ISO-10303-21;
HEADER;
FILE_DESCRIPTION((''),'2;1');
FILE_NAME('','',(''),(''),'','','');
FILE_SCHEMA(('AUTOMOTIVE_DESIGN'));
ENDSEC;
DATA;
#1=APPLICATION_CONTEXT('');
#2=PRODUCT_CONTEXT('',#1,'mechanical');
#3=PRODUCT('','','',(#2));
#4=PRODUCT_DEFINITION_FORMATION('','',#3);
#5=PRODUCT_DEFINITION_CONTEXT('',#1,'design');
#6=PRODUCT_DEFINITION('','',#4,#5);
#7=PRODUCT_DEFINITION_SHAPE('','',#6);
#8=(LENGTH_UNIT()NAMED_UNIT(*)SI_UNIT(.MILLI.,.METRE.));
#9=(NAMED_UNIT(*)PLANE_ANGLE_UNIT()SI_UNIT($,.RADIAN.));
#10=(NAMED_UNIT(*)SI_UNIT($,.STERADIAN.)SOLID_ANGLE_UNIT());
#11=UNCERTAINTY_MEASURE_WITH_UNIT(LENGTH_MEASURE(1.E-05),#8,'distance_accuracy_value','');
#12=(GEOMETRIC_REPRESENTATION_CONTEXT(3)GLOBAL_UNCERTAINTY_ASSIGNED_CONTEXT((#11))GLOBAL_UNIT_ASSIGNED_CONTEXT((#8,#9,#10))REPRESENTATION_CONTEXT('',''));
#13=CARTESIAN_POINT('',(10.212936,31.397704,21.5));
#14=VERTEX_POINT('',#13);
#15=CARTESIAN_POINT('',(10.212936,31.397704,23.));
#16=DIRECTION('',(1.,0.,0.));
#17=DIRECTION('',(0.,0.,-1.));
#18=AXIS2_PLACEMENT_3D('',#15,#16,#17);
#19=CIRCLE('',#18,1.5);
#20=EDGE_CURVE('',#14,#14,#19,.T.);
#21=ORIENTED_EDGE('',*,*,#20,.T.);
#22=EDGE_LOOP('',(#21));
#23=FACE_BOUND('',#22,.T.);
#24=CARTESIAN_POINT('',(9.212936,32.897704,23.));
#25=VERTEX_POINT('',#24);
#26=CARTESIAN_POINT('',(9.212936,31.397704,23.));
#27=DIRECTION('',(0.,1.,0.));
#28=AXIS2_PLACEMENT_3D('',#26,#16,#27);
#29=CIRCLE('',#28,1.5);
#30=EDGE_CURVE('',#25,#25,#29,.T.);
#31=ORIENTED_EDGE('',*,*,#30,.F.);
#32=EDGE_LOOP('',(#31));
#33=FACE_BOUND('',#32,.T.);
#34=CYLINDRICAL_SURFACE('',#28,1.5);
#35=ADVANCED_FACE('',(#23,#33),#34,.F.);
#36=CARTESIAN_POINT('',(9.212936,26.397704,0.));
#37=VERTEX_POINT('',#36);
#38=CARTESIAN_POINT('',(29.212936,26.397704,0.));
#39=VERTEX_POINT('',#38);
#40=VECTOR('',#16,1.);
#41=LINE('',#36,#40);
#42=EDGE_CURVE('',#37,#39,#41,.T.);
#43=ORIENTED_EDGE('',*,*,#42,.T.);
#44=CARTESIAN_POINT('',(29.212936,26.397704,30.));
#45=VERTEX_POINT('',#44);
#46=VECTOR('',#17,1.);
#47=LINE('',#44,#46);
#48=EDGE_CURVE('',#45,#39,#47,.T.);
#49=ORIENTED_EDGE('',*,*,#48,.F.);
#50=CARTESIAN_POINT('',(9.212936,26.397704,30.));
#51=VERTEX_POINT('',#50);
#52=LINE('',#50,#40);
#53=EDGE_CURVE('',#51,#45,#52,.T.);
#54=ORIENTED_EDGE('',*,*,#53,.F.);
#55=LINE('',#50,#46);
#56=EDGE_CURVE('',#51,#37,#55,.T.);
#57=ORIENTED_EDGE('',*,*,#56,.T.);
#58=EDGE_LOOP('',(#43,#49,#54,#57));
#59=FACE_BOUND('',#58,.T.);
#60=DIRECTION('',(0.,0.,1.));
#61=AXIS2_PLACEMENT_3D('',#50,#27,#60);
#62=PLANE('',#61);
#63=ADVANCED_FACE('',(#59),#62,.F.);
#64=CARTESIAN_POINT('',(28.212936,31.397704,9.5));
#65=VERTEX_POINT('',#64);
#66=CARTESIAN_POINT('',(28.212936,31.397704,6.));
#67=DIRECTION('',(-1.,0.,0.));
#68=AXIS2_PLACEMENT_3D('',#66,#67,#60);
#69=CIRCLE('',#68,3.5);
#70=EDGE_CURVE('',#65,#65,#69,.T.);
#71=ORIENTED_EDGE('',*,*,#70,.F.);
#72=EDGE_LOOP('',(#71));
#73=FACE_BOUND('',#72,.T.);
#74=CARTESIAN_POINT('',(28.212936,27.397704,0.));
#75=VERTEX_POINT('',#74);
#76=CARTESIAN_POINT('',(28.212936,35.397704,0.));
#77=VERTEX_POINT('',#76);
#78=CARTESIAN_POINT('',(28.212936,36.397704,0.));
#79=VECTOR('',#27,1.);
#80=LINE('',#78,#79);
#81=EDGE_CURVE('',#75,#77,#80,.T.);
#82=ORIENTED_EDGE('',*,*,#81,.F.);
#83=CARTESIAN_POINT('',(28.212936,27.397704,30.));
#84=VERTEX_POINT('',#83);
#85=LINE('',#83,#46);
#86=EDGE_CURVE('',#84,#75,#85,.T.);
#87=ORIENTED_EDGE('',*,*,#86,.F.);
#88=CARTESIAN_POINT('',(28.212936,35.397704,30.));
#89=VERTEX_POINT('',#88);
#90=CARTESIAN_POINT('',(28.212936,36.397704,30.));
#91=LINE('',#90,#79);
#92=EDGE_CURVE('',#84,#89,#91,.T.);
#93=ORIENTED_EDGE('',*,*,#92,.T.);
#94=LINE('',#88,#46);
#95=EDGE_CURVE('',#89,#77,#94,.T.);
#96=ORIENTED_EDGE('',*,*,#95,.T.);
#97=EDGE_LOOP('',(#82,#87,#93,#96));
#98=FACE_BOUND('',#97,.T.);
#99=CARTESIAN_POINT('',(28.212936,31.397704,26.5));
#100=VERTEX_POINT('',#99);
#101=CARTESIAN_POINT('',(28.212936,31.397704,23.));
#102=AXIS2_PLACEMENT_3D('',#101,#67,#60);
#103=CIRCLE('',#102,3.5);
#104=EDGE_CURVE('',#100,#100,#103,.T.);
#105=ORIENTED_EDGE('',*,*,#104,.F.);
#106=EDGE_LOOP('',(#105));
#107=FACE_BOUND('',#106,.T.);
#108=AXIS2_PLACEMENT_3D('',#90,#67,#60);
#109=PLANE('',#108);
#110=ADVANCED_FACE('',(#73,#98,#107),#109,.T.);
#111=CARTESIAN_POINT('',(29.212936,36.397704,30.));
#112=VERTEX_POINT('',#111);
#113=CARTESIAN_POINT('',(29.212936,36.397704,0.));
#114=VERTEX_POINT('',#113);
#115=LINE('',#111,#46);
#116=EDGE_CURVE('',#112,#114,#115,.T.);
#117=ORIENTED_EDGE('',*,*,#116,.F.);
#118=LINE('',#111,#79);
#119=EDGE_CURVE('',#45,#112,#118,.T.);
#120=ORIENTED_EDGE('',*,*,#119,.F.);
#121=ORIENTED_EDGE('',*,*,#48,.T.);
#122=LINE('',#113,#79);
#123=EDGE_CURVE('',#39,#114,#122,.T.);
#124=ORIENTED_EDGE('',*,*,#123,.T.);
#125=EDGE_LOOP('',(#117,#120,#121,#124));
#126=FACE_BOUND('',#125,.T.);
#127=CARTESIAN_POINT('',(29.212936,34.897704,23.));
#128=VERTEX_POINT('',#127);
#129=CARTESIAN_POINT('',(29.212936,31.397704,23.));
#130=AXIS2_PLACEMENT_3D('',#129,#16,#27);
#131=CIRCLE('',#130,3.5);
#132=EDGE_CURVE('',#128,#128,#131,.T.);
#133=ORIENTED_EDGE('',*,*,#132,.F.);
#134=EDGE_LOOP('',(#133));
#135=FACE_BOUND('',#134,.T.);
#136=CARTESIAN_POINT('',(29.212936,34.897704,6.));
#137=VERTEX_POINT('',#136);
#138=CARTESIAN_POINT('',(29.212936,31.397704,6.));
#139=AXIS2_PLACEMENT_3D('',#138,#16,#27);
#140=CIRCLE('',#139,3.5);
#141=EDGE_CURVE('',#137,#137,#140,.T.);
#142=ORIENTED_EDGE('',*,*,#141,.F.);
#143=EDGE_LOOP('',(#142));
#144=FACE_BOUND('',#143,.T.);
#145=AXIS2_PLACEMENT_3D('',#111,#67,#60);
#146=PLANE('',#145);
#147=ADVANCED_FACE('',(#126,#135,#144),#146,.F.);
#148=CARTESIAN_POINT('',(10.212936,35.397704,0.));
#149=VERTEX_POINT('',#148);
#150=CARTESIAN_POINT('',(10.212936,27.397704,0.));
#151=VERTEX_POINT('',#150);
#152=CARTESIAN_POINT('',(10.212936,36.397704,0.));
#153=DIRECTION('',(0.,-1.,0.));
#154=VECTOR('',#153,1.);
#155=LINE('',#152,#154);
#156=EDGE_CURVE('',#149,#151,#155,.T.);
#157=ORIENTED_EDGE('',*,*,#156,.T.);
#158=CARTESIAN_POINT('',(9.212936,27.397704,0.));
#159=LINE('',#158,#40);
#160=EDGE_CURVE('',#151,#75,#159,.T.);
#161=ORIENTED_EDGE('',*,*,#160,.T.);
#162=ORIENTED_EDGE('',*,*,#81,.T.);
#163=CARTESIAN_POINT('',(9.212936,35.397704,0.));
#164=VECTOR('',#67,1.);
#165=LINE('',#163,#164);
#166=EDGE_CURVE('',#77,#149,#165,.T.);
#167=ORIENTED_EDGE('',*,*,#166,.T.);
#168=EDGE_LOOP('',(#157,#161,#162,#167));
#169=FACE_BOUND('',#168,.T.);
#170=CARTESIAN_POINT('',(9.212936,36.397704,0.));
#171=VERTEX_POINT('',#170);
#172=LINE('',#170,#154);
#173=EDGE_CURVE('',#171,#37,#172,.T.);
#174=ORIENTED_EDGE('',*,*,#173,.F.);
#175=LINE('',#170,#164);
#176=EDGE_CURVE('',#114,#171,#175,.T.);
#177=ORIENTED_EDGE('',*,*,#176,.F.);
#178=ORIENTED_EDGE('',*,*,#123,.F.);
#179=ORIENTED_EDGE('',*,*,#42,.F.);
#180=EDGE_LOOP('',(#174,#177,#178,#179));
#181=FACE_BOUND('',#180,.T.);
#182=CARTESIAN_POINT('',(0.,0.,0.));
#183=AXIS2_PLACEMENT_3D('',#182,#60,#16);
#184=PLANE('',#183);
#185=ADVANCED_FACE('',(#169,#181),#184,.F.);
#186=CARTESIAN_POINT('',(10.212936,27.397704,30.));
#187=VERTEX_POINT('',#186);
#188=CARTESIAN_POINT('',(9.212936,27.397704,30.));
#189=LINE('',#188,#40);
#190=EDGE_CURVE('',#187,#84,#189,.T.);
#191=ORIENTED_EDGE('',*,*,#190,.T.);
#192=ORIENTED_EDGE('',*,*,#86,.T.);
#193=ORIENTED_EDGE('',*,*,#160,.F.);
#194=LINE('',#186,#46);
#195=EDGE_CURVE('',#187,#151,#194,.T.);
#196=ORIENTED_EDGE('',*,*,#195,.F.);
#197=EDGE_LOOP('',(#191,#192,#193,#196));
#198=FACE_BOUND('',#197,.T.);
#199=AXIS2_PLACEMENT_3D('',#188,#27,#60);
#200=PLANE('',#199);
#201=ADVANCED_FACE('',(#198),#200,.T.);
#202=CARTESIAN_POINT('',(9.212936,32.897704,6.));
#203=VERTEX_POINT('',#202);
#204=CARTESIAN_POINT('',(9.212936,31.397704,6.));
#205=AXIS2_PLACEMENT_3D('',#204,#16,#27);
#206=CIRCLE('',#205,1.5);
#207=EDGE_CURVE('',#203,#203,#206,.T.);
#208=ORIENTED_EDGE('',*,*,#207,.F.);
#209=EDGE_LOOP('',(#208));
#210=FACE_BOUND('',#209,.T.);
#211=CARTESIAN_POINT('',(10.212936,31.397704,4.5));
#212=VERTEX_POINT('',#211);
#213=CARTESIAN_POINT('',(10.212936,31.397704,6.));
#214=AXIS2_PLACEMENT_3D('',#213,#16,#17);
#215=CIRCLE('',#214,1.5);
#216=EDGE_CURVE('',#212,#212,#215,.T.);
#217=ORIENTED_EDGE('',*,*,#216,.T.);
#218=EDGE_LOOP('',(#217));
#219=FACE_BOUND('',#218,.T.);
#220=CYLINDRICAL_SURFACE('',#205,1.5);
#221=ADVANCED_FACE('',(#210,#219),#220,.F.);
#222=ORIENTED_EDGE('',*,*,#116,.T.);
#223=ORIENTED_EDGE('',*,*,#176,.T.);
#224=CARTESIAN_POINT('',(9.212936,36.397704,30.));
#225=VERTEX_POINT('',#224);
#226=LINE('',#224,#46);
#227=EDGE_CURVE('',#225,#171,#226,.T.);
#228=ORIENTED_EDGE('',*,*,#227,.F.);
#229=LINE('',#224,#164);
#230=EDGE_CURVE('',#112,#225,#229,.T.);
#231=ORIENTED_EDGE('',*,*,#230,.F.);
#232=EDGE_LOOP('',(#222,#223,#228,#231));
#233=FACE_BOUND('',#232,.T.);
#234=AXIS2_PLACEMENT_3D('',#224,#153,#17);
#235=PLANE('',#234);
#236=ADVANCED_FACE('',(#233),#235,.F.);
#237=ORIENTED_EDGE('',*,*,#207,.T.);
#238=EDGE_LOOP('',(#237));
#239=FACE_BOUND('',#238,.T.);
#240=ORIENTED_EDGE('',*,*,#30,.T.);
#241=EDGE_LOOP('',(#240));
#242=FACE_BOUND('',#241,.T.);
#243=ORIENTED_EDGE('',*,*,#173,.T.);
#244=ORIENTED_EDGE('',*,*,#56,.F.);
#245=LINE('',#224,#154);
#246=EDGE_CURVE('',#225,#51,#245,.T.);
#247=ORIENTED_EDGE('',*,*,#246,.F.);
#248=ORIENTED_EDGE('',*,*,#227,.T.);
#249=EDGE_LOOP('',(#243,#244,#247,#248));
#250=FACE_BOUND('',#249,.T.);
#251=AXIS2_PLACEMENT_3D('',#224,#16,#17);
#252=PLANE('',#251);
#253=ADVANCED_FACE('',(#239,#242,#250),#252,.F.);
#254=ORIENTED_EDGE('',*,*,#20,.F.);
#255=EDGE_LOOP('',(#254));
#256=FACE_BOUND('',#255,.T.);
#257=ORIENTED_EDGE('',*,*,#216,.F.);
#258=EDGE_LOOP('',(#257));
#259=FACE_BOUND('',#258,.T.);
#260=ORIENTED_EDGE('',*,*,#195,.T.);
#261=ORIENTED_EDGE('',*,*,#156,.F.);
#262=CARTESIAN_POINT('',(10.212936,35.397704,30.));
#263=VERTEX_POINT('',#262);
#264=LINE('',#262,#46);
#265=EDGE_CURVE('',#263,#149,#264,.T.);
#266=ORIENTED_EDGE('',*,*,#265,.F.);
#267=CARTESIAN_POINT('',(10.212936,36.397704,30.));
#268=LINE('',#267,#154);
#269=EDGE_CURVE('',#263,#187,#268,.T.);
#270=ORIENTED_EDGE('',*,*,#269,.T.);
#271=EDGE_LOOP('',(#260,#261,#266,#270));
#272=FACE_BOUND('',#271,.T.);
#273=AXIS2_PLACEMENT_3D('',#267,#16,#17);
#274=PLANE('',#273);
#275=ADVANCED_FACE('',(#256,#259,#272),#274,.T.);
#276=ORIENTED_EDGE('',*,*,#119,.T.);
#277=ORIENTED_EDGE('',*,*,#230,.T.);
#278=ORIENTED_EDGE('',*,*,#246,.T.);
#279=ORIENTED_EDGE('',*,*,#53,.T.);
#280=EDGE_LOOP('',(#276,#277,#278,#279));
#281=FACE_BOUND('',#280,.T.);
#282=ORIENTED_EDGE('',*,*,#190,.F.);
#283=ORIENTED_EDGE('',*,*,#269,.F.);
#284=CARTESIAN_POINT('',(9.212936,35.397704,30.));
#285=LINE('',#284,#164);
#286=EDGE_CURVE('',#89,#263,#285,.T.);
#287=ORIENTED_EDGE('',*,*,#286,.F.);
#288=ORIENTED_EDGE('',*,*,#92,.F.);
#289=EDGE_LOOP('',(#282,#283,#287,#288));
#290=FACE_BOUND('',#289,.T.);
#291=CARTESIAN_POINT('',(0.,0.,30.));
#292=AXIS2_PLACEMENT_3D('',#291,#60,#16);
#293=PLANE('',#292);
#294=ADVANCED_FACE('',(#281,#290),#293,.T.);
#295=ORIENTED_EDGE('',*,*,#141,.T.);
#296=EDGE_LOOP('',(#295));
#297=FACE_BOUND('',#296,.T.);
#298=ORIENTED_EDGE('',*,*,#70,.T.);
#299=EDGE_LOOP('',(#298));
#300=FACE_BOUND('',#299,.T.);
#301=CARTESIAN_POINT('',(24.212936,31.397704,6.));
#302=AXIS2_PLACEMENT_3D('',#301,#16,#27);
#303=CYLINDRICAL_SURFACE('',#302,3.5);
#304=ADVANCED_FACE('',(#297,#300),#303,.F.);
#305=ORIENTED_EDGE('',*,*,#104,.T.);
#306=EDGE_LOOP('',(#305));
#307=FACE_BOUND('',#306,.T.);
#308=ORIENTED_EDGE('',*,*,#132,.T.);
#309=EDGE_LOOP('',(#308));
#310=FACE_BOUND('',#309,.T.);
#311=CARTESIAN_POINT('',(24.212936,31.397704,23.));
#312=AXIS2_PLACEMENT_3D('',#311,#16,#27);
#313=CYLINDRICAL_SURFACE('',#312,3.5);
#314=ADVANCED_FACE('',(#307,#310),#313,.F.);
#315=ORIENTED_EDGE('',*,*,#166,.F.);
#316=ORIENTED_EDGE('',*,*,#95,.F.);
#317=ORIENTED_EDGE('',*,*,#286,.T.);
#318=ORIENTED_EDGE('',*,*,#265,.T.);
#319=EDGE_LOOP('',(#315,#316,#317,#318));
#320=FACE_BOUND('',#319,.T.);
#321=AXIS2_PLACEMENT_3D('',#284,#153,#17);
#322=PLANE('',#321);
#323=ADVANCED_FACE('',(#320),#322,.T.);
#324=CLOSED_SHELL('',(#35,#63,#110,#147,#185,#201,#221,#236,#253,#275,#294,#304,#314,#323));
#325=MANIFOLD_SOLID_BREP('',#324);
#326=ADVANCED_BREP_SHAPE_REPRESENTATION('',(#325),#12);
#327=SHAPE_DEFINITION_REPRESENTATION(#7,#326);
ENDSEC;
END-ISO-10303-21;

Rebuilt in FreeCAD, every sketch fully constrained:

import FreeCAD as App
import Part
import Sketcher

doc = App.newDocument("Part")
body = doc.addObject("PartDesign::Body", "Body")

# Sketch on XY plane
sketch1 = body.newObject("Sketcher::SketchObject", "Sketch")
sketch1.AttachmentSupport = (doc.getObject("XY_Plane"), [""])
sketch1.MapMode = "FlatFace"
sketch1.addGeometry(Part.LineSegment(App.Vector(9, 36, 0), App.Vector(9, 26, 0)), False)
sketch1.addGeometry(Part.LineSegment(App.Vector(9, 26, 0), App.Vector(29, 26, 0)), False)
sketch1.addGeometry(Part.LineSegment(App.Vector(29, 26, 0), App.Vector(29, 36, 0)), False)
sketch1.addGeometry(Part.LineSegment(App.Vector(29, 36, 0), App.Vector(9, 36, 0)), False)
sketch1.addGeometry(Part.LineSegment(App.Vector(28, 27, 0), App.Vector(10, 27, 0)), False)
sketch1.addGeometry(Part.LineSegment(App.Vector(10, 27, 0), App.Vector(10, 35, 0)), False)
sketch1.addGeometry(Part.LineSegment(App.Vector(10, 35, 0), App.Vector(28, 35, 0)), False)
sketch1.addGeometry(Part.LineSegment(App.Vector(28, 35, 0), App.Vector(28, 27, 0)), False)
sketch1.addConstraint(Sketcher.Constraint("Coincident", 0, 2, 1, 1))
sketch1.addConstraint(Sketcher.Constraint("Coincident", 1, 2, 2, 1))
sketch1.addConstraint(Sketcher.Constraint("Coincident", 2, 2, 3, 1))
sketch1.addConstraint(Sketcher.Constraint("Coincident", 3, 2, 0, 1))
sketch1.addConstraint(Sketcher.Constraint("Coincident", 4, 2, 5, 1))
sketch1.addConstraint(Sketcher.Constraint("Coincident", 5, 2, 6, 1))
sketch1.addConstraint(Sketcher.Constraint("Coincident", 6, 2, 7, 1))
sketch1.addConstraint(Sketcher.Constraint("Coincident", 7, 2, 4, 1))
sketch1.addConstraint(Sketcher.Constraint("Vertical", 0))
sketch1.addConstraint(Sketcher.Constraint("Horizontal", 1))
sketch1.addConstraint(Sketcher.Constraint("Vertical", 2))
sketch1.addConstraint(Sketcher.Constraint("Horizontal", 3))
sketch1.addConstraint(Sketcher.Constraint("Horizontal", 4))
sketch1.addConstraint(Sketcher.Constraint("Vertical", 5))
sketch1.addConstraint(Sketcher.Constraint("Horizontal", 6))
sketch1.addConstraint(Sketcher.Constraint("Vertical", 7))
sketch1.addConstraint(Sketcher.Constraint("DistanceX", 1, 1, 1, 2, 20.0))
sketch1.addConstraint(Sketcher.Constraint("DistanceX", 4, 2, 4, 1, 18.0))
sketch1.addConstraint(Sketcher.Constraint("DistanceY", 0, 2, 0, 1, 10.0))
sketch1.addConstraint(Sketcher.Constraint("DistanceY", 5, 1, 5, 2, 8.0))
sketch1.addConstraint(Sketcher.Constraint("DistanceX", 0, 2, 4, 2, 1.0))
sketch1.addConstraint(Sketcher.Constraint("DistanceY", 0, 2, 4, 2, 1.0))
sketch1.addConstraint(Sketcher.Constraint("DistanceX", -1, 1, 0, 2, 9.212936))
sketch1.addConstraint(Sketcher.Constraint("DistanceY", -1, 1, 0, 2, 26.397704))
pad1 = body.newObject("PartDesign::Pad", "Pad")
pad1.Profile = sketch1
pad1.Length = 30

# Sketch on YZ plane
sketch2 = body.newObject("Sketcher::SketchObject", "Sketch001")
sketch2.AttachmentSupport = (doc.getObject("YZ_Plane"), [""])
sketch2.MapMode = "FlatFace"
sketch2.AttachmentOffset = App.Placement(App.Vector(0, 0, 29.212936), App.Rotation())
sketch2.addGeometry(Part.Circle(App.Vector(31.4, 23, 0), App.Vector(0, 0, 1), 1.5), False)
sketch2.addGeometry(Part.Circle(App.Vector(31.4, 6, 0), App.Vector(0, 0, 1), 1.5), False)
sketch2.addConstraint(Sketcher.Constraint("Equal", 0, 1))
sketch2.addConstraint(Sketcher.Constraint("Vertical", 0, 3, 1, 3))
sketch2.addConstraint(Sketcher.Constraint("Diameter", 0, 3.0))
sketch2.addConstraint(Sketcher.Constraint("DistanceY", -1, 1, 0, 3, 23.0))
sketch2.addConstraint(Sketcher.Constraint("DistanceY", -1, 1, 1, 3, 6.0))
sketch2.addConstraint(Sketcher.Constraint("DistanceX", -1, 1, 0, 3, 31.397704))
pocket1 = body.newObject("PartDesign::Pocket", "Pocket")
pocket1.Profile = sketch2
pocket1.Length = 20

# Sketch on YZ plane
sketch3 = body.newObject("Sketcher::SketchObject", "Sketch002")
sketch3.AttachmentSupport = (doc.getObject("YZ_Plane"), [""])
sketch3.MapMode = "FlatFace"
sketch3.AttachmentOffset = App.Placement(App.Vector(0, 0, 29.212936), App.Rotation())
sketch3.addGeometry(Part.Circle(App.Vector(31.4, 23, 0), App.Vector(0, 0, 1), 3.5), False)
sketch3.addGeometry(Part.Circle(App.Vector(31.4, 6, 0), App.Vector(0, 0, 1), 3.5), False)
sketch3.addConstraint(Sketcher.Constraint("Equal", 0, 1))
sketch3.addConstraint(Sketcher.Constraint("Vertical", 0, 3, 1, 3))
sketch3.addConstraint(Sketcher.Constraint("Diameter", 0, 7.0))
sketch3.addConstraint(Sketcher.Constraint("DistanceY", -1, 1, 0, 3, 23.0))
sketch3.addConstraint(Sketcher.Constraint("DistanceY", -1, 1, 1, 3, 6.0))
sketch3.addConstraint(Sketcher.Constraint("DistanceX", -1, 1, 0, 3, 31.397704))
pocket2 = body.newObject("PartDesign::Pocket", "Pocket001")
pocket2.Profile = sketch3
pocket2.Length = 5

doc.recompute()
